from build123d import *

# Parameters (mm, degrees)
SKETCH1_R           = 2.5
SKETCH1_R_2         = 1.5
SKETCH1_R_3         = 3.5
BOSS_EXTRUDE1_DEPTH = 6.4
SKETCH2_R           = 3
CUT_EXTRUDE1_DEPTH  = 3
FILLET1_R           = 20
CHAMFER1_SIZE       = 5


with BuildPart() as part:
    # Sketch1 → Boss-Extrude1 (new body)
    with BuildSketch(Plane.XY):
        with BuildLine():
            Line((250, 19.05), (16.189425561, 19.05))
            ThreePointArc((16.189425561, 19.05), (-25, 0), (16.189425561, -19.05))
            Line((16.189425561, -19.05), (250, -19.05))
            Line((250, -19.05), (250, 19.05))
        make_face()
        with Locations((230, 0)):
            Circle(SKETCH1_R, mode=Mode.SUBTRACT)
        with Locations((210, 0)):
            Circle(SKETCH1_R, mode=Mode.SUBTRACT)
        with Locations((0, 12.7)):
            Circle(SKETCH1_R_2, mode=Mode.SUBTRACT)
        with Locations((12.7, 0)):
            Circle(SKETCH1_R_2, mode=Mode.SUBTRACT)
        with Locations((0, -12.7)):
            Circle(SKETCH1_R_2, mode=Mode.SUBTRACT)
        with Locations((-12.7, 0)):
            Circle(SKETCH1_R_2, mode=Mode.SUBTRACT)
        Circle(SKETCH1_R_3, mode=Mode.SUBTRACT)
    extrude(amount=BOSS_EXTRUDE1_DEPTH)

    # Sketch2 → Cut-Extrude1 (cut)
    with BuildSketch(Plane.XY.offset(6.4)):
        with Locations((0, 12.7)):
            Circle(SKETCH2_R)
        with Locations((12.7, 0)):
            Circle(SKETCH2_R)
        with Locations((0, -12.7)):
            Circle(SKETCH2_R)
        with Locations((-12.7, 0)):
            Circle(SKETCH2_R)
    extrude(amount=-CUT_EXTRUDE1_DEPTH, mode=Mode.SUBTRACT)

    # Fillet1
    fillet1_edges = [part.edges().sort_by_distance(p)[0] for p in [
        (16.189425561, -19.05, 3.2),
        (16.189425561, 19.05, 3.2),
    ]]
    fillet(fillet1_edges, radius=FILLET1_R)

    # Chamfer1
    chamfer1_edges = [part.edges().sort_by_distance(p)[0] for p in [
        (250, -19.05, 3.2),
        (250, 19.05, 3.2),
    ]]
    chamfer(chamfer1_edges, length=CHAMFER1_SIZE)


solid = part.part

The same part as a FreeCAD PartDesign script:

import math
import FreeCAD as App
import Part
import Sketcher
Q = App.Units.Quantity


def edges_at(feature, points):
    """Names of the edges that pass closest to the given points."""
    edges = feature.Shape.Edges
    near = lambda p: min(range(len(edges)), key=lambda i: edges[i].distToShape(Part.Vertex(*p))[0])
    return sorted({f"Edge{near(p) + 1}" for p in points})

doc = App.newDocument("Part")
body = doc.addObject("PartDesign::Body", "Body")

# Sketch on XY plane
sketch1 = doc.addObject("Sketcher::SketchObject", "Sketch")
body.addObject(sketch1)
sketch1.AttachmentSupport = (doc.XY_Plane, [""])
sketch1.MapMode = "FlatFace"
sketch1.addGeometry([
    Part.LineSegment(App.Vector(250, 19.1, 0), App.Vector(16.2, 19.1, 0)),  # 0
    Part.ArcOfCircle(Part.Circle(App.Vector(0, 0, 0), App.Vector(0, 0, 1), 25), math.radians(50), math.radians(310)),  # 1
    Part.LineSegment(App.Vector(16.2, -19.1, 0), App.Vector(250, -19.1, 0)),  # 2
    Part.LineSegment(App.Vector(250, -19.1, 0), App.Vector(250, 19.1, 0)),  # 3
    Part.Circle(App.Vector(0, -12.7, 0), App.Vector(0, 0, 1), 1.5),  # 4
    Part.Circle(App.Vector(-12.7, 0, 0), App.Vector(0, 0, 1), 1.5),  # 5
    Part.Circle(App.Vector(0, 0, 0), App.Vector(0, 0, 1), 3.5),  # 6
    Part.Circle(App.Vector(12.7, 0, 0), App.Vector(0, 0, 1), 1.5),  # 7
    Part.Circle(App.Vector(0, 12.7, 0), App.Vector(0, 0, 1), 1.5),  # 8
    Part.Circle(App.Vector(210, 0, 0), App.Vector(0, 0, 1), 2.5),  # 9
    Part.Circle(App.Vector(230, 0, 0), App.Vector(0, 0, 1), 2.5),  # 10
], False)
sketch1.addConstraint([
    Sketcher.Constraint("Coincident", 0, 2, 1, 1),
    Sketcher.Constraint("Coincident", 1, 2, 2, 1),
    Sketcher.Constraint("Coincident", 2, 2, 3, 1),
    Sketcher.Constraint("Coincident", 3, 2, 0, 1),
    Sketcher.Constraint("Horizontal", 0),
    Sketcher.Constraint("Horizontal", 2),
    Sketcher.Constraint("Vertical", 3),
    Sketcher.Constraint("Coincident", 1, 3, -1, 1),
    Sketcher.Constraint("Coincident", 6, 3, -1, 1),
    Sketcher.Constraint("Equal", 4, 5),
    Sketcher.Constraint("Equal", 5, 7),
    Sketcher.Constraint("Equal", 7, 8),
    Sketcher.Constraint("Equal", 9, 10),
    Sketcher.Constraint("Symmetric", 5, 3, 7, 3, -1, 1),
    Sketcher.Constraint("Symmetric", 4, 3, 8, 3, -1, 1),
    Sketcher.Constraint("PointOnObject", 4, 3, -2),
    Sketcher.Constraint("PointOnObject", 5, 3, -1),
    Sketcher.Constraint("PointOnObject", 9, 3, -1),
    Sketcher.Constraint("PointOnObject", 10, 3, -1),
    Sketcher.Constraint("Vertical", 0, 2, 1, 2),
    Sketcher.Constraint("Diameter", 4, Q("3 mm")),
    Sketcher.Constraint("Diameter", 6, Q("7 mm")),
    Sketcher.Constraint("Diameter", 9, Q("5 mm")),
    Sketcher.Constraint("Radius", 1, Q("25 mm")),
    Sketcher.Constraint("DistanceY", 3, 1, 3, 2, Q("38.1 mm")),
    Sketcher.Constraint("DistanceX", -1, 1, 9, 3, Q("210 mm")),
    Sketcher.Constraint("DistanceX", -1, 1, 10, 3, Q("230 mm")),
    Sketcher.Constraint("DistanceX", -1, 1, 2, 2, Q("250 mm")),
    Sketcher.Constraint("DistanceY", 4, 3, -1, 1, Q("12.7 mm")),
    Sketcher.Constraint("DistanceX", 5, 3, -1, 1, Q("12.7 mm")),
])
pad1 = doc.addObject("PartDesign::Pad", "Pad")
body.addObject(pad1)
pad1.Profile = sketch1
pad1.Length = 6.4

# Sketch on XY plane
sketch2 = doc.addObject("Sketcher::SketchObject", "Sketch001")
body.addObject(sketch2)
sketch2.AttachmentSupport = (doc.XY_Plane, [""])
sketch2.MapMode = "FlatFace"
sketch2.AttachmentOffset = App.Placement(App.Vector(0, 0, 6.4), App.Rotation())
sketch2.addGeometry([
    Part.Circle(App.Vector(0, 12.7, 0), App.Vector(0, 0, 1), 3),
    Part.Circle(App.Vector(12.7, 0, 0), App.Vector(0, 0, 1), 3),
    Part.Circle(App.Vector(0, -12.7, 0), App.Vector(0, 0, 1), 3),
    Part.Circle(App.Vector(-12.7, 0, 0), App.Vector(0, 0, 1), 3),
], False)
sketch2.addConstraint([
    Sketcher.Constraint("Equal", 0, 1),
    Sketcher.Constraint("Equal", 1, 2),
    Sketcher.Constraint("Equal", 2, 3),
    Sketcher.Constraint("Symmetric", 0, 3, 2, 3, -1, 1),
    Sketcher.Constraint("Symmetric", 1, 3, 3, 3, -1, 1),
    Sketcher.Constraint("PointOnObject", 0, 3, -2),
    Sketcher.Constraint("PointOnObject", 1, 3, -1),
    Sketcher.Constraint("Diameter", 0, Q("6 mm")),
    Sketcher.Constraint("DistanceY", -1, 1, 0, 3, Q("12.7 mm")),
    Sketcher.Constraint("DistanceX", -1, 1, 1, 3, Q("12.7 mm")),
])
pocket1 = doc.addObject("PartDesign::Pocket", "Pocket")
body.addObject(pocket1)
pocket1.Profile = sketch2
pocket1.Length = 3
doc.recompute()

fillet = doc.addObject("PartDesign::Fillet", "Fillet")
body.addObject(fillet)
fillet.Base = (pocket1, edges_at(pocket1, [(16.189, -19.05, 3.2), (16.189, 19.05, 3.2)]))
fillet.Radius = 20
doc.recompute()

chamfer = doc.addObject("PartDesign::Chamfer", "Chamfer")
body.addObject(chamfer)
chamfer.Base = (fillet, edges_at(fillet, [(250, -19.05, 3.2), (250, 19.05, 3.2)]))
chamfer.Size = 5

doc.recompute()
